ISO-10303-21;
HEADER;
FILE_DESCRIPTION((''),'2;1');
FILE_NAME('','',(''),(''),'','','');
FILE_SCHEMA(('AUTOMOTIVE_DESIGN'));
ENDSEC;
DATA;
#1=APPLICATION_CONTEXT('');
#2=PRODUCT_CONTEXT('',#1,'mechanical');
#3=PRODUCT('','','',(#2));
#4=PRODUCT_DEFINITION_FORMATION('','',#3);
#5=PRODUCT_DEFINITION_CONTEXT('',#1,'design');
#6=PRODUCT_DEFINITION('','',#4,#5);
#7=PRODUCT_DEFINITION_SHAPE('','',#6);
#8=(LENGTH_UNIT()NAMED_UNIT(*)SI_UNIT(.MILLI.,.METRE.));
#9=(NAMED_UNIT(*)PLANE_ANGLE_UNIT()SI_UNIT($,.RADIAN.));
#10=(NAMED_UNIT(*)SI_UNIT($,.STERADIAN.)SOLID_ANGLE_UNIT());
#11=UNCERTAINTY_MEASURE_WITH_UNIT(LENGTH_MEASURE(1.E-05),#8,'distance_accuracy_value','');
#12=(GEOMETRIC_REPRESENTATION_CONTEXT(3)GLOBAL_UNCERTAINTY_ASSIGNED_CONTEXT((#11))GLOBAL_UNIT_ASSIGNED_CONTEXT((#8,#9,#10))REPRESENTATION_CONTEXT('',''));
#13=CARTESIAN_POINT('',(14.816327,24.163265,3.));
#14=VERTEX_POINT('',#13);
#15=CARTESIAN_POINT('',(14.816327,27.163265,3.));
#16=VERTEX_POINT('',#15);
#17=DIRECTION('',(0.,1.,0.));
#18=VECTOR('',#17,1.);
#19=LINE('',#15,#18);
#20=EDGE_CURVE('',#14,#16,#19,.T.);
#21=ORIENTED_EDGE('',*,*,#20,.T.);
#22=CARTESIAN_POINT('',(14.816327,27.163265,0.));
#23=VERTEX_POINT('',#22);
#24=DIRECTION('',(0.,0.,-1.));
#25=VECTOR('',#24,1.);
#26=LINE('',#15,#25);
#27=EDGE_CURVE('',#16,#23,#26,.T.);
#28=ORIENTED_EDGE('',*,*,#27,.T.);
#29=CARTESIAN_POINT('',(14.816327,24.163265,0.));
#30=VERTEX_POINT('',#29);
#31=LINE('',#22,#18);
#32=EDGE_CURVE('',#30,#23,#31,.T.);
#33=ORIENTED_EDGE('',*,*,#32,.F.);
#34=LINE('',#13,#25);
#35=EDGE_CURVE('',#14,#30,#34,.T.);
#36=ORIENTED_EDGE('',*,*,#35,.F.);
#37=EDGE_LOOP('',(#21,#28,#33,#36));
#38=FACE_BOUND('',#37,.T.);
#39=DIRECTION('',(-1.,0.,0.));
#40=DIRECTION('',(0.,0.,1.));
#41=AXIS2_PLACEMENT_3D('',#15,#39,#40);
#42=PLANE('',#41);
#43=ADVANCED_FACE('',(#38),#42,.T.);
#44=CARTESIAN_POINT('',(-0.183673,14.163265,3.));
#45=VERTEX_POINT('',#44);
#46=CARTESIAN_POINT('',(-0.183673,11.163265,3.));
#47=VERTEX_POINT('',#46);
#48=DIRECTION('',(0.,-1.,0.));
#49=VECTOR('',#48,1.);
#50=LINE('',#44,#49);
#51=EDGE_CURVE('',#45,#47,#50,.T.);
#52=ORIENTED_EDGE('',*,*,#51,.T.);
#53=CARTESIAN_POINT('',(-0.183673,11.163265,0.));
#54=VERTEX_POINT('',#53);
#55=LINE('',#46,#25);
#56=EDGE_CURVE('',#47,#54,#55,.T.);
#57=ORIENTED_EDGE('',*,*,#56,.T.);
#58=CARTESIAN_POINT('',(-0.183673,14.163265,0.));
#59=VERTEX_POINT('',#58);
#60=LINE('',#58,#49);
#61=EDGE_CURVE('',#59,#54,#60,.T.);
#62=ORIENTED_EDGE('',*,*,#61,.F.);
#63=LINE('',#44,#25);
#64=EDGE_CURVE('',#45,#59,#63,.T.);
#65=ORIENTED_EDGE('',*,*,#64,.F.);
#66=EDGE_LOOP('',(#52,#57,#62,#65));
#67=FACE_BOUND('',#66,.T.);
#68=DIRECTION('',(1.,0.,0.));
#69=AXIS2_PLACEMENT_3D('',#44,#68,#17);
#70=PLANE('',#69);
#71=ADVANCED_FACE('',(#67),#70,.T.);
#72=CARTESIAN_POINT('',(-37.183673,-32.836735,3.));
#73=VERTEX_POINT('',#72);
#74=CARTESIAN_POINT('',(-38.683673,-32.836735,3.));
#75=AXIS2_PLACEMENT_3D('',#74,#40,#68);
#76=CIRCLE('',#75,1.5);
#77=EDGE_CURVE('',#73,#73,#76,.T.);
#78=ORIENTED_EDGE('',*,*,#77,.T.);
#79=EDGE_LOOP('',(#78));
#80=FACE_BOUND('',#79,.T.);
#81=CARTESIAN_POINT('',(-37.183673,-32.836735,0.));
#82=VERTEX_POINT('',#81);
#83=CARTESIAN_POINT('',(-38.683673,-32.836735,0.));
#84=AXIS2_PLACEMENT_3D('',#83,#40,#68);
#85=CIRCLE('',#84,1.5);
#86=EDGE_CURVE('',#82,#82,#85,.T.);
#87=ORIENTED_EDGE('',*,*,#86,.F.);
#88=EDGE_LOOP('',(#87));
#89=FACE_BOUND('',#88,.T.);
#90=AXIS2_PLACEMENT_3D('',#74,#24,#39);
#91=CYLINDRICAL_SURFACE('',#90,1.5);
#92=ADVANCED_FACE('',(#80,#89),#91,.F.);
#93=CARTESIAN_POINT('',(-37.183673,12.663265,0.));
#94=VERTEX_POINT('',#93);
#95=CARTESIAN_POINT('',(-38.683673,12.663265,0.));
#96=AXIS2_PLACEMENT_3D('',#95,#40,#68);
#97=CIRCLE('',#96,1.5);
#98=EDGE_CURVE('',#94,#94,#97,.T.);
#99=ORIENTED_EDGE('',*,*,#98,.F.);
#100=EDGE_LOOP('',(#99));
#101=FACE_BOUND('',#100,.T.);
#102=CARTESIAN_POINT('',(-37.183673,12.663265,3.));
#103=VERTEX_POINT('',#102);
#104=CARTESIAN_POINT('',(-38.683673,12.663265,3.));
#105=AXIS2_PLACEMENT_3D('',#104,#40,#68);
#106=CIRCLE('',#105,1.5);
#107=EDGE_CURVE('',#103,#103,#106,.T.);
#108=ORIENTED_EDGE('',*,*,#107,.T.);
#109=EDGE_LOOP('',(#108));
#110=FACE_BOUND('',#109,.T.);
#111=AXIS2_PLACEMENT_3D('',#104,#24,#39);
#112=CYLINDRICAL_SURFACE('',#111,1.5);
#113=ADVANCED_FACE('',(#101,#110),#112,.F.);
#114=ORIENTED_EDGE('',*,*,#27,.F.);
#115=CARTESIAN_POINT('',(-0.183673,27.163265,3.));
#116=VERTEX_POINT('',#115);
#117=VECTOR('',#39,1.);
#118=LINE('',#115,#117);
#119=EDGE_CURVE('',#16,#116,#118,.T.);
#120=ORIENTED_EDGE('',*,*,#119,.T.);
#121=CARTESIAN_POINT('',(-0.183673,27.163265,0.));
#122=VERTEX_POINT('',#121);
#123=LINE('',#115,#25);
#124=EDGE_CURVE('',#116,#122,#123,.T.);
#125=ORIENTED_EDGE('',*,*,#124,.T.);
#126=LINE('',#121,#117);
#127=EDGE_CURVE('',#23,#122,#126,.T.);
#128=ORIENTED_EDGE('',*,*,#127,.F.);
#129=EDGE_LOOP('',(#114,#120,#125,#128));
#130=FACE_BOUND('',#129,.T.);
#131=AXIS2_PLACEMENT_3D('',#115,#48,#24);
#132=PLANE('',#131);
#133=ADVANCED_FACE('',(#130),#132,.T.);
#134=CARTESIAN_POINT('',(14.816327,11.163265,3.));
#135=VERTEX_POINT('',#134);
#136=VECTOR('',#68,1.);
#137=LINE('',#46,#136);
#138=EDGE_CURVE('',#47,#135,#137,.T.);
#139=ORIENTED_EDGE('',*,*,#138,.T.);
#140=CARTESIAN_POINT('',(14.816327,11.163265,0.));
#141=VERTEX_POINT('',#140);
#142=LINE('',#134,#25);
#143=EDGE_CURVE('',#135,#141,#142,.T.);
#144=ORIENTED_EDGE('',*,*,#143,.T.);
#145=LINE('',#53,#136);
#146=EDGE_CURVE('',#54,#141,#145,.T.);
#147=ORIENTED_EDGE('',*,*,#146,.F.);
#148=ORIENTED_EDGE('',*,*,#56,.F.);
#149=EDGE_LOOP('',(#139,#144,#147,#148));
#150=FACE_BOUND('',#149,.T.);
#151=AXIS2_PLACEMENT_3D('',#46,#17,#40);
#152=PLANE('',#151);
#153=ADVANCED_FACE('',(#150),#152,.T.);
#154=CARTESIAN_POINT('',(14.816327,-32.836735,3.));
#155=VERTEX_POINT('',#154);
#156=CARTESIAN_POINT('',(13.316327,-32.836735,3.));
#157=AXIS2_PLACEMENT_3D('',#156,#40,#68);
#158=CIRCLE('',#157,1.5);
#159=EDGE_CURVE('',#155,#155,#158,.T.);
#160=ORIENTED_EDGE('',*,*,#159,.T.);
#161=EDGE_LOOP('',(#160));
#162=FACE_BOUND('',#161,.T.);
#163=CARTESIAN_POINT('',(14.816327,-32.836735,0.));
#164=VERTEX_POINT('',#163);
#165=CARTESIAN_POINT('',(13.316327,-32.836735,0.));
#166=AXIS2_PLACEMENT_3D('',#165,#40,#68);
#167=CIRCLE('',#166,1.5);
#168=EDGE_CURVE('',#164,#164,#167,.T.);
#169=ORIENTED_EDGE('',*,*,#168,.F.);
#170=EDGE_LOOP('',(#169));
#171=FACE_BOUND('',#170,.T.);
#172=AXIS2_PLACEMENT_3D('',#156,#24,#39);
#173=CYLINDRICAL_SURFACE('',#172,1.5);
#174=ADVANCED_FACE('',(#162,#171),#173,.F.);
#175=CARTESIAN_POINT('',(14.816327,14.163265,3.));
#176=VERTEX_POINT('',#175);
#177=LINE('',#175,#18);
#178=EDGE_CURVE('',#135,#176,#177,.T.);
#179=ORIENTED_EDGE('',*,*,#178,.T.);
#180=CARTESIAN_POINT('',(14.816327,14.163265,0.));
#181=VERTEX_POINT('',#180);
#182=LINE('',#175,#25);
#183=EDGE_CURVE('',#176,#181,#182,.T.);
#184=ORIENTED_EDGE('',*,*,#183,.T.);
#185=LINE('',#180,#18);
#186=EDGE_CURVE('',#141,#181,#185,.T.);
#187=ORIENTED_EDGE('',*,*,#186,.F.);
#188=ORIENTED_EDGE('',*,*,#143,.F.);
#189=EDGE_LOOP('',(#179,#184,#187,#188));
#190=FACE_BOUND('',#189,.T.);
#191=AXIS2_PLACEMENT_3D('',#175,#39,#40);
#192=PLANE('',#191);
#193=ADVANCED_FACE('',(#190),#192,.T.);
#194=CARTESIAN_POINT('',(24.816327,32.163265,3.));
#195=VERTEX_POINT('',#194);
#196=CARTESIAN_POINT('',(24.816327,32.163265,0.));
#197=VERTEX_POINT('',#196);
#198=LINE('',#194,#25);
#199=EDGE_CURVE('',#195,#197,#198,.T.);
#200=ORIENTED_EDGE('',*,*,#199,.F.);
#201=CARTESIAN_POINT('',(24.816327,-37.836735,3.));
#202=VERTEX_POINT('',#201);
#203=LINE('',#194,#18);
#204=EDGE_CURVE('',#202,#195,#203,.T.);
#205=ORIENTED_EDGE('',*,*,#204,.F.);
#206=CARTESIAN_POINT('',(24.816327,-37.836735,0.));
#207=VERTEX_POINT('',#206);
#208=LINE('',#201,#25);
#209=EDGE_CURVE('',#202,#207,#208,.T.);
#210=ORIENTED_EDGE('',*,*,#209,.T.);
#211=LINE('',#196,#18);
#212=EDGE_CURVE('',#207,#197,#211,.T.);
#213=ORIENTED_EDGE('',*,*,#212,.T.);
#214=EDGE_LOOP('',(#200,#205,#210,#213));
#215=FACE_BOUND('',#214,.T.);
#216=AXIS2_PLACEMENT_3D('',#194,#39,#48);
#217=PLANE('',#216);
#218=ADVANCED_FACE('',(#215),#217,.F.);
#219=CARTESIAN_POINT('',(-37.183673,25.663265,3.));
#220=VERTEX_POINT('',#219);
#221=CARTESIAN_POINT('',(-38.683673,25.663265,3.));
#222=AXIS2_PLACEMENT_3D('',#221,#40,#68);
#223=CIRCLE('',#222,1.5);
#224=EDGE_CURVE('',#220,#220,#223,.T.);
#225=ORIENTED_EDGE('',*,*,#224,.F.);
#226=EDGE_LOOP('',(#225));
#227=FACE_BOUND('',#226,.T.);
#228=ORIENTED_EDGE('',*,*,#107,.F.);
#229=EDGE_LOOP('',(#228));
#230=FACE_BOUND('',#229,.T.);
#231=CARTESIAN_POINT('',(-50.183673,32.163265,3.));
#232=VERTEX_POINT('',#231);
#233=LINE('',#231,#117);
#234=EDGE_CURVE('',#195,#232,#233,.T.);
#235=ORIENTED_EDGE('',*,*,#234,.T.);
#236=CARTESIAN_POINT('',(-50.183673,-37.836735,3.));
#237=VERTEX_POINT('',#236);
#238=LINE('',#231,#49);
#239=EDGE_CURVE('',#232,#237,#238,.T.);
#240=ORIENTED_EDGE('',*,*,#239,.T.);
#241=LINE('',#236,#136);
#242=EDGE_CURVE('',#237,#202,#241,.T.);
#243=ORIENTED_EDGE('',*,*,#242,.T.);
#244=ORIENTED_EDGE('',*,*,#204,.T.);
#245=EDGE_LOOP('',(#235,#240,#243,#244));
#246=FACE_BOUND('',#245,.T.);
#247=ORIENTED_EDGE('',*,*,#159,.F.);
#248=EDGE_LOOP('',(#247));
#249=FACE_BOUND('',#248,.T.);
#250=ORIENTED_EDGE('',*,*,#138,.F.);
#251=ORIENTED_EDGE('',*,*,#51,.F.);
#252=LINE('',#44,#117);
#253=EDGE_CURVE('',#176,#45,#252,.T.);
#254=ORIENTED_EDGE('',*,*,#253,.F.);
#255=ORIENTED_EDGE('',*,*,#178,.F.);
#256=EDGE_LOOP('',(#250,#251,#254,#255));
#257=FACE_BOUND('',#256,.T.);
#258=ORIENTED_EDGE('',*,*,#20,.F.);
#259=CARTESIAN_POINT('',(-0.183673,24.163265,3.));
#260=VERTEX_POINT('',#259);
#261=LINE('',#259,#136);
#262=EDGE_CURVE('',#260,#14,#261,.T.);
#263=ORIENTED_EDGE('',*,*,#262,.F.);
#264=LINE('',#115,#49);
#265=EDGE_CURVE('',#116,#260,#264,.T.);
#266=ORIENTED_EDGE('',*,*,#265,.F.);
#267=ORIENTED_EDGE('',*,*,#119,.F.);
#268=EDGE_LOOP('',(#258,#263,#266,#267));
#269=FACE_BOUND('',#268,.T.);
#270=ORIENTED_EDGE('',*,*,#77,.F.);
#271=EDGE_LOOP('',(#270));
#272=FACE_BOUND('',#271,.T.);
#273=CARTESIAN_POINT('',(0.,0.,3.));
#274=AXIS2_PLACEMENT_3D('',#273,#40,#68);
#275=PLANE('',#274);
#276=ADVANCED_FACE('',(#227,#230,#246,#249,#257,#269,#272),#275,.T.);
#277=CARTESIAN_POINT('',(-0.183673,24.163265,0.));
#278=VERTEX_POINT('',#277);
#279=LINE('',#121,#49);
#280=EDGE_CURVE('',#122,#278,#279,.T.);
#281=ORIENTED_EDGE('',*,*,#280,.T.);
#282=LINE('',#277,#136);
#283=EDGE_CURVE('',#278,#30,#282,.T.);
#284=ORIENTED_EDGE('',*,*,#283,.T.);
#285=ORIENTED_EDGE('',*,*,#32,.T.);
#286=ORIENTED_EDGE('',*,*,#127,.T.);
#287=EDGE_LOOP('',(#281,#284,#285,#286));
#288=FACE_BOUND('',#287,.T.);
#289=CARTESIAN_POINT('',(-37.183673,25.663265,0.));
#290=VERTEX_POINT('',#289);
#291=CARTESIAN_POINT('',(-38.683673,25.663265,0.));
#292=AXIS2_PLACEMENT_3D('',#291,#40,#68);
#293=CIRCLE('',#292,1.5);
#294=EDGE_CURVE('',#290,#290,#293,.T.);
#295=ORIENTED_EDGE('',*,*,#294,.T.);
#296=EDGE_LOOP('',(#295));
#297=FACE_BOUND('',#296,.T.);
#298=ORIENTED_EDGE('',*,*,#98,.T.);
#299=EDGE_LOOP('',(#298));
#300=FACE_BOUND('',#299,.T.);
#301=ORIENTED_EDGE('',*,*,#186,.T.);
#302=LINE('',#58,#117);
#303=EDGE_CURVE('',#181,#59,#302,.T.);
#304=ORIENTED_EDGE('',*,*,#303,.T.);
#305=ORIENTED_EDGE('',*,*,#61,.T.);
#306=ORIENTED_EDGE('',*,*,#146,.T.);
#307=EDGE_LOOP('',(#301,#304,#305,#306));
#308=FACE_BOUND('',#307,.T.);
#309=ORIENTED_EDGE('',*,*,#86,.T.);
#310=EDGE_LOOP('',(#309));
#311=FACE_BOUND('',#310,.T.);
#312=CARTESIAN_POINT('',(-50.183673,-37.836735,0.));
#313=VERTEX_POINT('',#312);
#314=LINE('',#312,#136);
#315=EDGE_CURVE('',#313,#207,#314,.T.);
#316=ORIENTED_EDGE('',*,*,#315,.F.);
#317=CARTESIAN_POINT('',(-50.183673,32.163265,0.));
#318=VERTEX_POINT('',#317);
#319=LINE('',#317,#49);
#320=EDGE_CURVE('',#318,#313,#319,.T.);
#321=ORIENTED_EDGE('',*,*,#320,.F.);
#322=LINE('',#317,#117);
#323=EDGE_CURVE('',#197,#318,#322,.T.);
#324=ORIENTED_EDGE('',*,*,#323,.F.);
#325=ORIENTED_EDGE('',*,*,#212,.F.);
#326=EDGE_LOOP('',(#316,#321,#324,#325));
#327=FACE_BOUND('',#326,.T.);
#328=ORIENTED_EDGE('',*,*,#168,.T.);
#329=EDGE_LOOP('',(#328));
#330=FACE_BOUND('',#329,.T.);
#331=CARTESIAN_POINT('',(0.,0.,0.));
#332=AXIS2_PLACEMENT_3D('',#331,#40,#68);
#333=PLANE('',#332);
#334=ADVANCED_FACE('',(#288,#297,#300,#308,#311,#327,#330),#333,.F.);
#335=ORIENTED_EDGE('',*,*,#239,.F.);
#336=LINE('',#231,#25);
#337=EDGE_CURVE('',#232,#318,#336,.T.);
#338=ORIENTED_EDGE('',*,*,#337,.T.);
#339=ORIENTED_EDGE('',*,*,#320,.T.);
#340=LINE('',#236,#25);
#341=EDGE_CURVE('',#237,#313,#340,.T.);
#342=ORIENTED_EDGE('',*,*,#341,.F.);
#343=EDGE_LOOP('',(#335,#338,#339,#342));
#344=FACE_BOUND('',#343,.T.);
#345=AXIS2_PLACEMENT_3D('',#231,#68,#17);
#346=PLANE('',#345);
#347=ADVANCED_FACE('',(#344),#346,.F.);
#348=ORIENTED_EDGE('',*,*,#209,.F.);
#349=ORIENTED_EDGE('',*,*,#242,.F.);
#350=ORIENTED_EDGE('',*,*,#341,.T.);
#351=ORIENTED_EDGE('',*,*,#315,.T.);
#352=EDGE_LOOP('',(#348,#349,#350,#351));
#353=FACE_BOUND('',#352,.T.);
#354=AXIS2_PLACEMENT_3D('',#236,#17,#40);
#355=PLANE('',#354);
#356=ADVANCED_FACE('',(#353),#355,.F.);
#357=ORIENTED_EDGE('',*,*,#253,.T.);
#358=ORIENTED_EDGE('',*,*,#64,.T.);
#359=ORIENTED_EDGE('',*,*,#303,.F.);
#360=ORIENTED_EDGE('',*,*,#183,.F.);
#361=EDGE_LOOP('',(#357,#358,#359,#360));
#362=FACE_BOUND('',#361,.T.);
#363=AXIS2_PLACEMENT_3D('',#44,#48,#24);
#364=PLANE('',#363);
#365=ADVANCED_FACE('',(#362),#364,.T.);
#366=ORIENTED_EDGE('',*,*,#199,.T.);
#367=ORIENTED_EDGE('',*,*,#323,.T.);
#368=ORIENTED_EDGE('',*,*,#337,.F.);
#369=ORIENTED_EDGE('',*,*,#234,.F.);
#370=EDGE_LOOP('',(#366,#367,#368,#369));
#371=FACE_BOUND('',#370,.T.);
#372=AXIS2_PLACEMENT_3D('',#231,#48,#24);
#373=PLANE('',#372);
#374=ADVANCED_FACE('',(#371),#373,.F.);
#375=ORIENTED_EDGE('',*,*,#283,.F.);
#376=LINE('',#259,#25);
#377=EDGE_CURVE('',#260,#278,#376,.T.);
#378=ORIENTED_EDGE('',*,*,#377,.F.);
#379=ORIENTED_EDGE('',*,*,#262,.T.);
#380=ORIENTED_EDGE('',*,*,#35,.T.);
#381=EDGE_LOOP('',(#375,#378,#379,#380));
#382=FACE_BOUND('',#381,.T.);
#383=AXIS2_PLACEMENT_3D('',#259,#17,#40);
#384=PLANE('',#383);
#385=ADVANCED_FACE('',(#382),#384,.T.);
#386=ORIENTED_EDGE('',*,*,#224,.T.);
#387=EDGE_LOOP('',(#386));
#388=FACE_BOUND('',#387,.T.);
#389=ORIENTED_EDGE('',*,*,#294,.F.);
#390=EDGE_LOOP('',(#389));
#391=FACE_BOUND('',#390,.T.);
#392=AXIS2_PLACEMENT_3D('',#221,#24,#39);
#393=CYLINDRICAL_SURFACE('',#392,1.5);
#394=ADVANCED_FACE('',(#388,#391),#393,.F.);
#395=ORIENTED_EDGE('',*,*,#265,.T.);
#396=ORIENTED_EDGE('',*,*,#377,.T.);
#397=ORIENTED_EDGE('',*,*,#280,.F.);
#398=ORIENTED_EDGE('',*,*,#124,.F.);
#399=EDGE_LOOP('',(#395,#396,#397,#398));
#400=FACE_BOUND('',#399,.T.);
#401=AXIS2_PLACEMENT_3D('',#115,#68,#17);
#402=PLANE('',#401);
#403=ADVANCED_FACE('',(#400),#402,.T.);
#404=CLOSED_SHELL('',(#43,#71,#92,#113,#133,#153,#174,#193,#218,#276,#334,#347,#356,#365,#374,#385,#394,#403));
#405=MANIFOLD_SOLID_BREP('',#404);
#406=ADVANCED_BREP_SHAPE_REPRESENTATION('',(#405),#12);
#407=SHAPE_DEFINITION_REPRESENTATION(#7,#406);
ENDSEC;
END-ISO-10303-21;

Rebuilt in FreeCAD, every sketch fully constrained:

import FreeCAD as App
import Part
import Sketcher

V = App.Vector
Q = App.Units.Quantity


def add_polygon(sketch, points):
    """Adds a closed chain of lines whose ends are joined by coincident constraints."""
    first, n = sketch.GeometryCount, len(points)
    for a, b in zip(points, points[1:] + points[:1]):
        sketch.addGeometry(Part.LineSegment(App.Vector(*a, 0), App.Vector(*b, 0)), False)
    for i in range(n):
        sketch.addConstraint(Sketcher.Constraint("Coincident", first + i, 2, first + (i + 1) % n, 1))

doc = App.newDocument("Part")
body = doc.addObject("PartDesign::Body", "Body")

sketch1 = body.newObject("Sketcher::SketchObject", "Sketch")
sketch1.AttachmentSupport = (doc.getObject("XY_Plane"), [""])
sketch1.MapMode = "FlatFace"
add_polygon(sketch1, [(-50.2, 32.2), (-50.2, -37.8), (24.8, -37.8), (24.8, 32.2)])
sketch1.addGeometry(Part.Circle(V(-38.7, -32.8, 0), V(0, 0, 1), 1.5), False)
sketch1.addGeometry(Part.Circle(V(13.3, -32.8, 0), V(0, 0, 1), 1.5), False)
sketch1.addGeometry(Part.Circle(V(-38.7, 12.7, 0), V(0, 0, 1), 1.5), False)
sketch1.addGeometry(Part.Circle(V(-38.7, 25.7, 0), V(0, 0, 1), 1.5), False)
add_polygon(sketch1, [(14.8, 11.2), (-0.2, 11.2), (-0.2, 14.2), (14.8, 14.2)])
add_polygon(sketch1, [(14.8, 24.2), (-0.2, 24.2), (-0.2, 27.2), (14.8, 27.2)])
sketch1.addConstraint(Sketcher.Constraint("Vertical", 0))
sketch1.addConstraint(Sketcher.Constraint("Horizontal", 1))
sketch1.addConstraint(Sketcher.Constraint("Vertical", 2))
sketch1.addConstraint(Sketcher.Constraint("Horizontal", 3))
sketch1.addConstraint(Sketcher.Constraint("Horizontal", 8))
sketch1.addConstraint(Sketcher.Constraint("Vertical", 9))
sketch1.addConstraint(Sketcher.Constraint("Horizontal", 10))
sketch1.addConstraint(Sketcher.Constraint("Vertical", 11))
sketch1.addConstraint(Sketcher.Constraint("Horizontal", 12))
sketch1.addConstraint(Sketcher.Constraint("Vertical", 13))
sketch1.addConstraint(Sketcher.Constraint("Horizontal", 14))
sketch1.addConstraint(Sketcher.Constraint("Vertical", 15))
sketch1.addConstraint(Sketcher.Constraint("Equal", 4, 5))
sketch1.addConstraint(Sketcher.Constraint("Equal", 5, 6))
sketch1.addConstraint(Sketcher.Constraint("Equal", 6, 7))
sketch1.addConstraint(Sketcher.Constraint("Horizontal", 4, 3, 5, 3))
sketch1.addConstraint(Sketcher.Constraint("Vertical", 4, 3, 6, 3))
sketch1.addConstraint(Sketcher.Constraint("Vertical", 6, 3, 7, 3))
sketch1.addConstraint(Sketcher.Constraint("Vertical", 9, 2, 12, 2))
sketch1.addConstraint(Sketcher.Constraint("Vertical", 11, 2, 14, 2))
sketch1.addConstraint(Sketcher.Constraint("Equal", 11, 13))
sketch1.addConstraint(Sketcher.Constraint("Diameter", 4, Q("3 mm")))
sketch1.addConstraint(Sketcher.Constraint("DistanceX", 1, 1, 1, 2, Q("75 mm")))
sketch1.addConstraint(Sketcher.Constraint("DistanceX", 8, 2, 8, 1, Q("15 mm")))
sketch1.addConstraint(Sketcher.Constraint("DistanceY", 0, 2, 0, 1, Q("70 mm")))
sketch1.addConstraint(Sketcher.Constraint("DistanceY", 9, 1, 9, 2, Q("3 mm")))
sketch1.addConstraint(Sketcher.Constraint("DistanceX", 4, 3, 5, 3, Q("52 mm")))
sketch1.addConstraint(Sketcher.Constraint("DistanceY", 6, 3, 7, 3, Q("13 mm")))
sketch1.addConstraint(Sketcher.Constraint("DistanceY", 0, 2, 4, 3, Q("5 mm")))
sketch1.addConstraint(Sketcher.Constraint("DistanceX", 8, 2, 2, 2, Q("25 mm")))
sketch1.addConstraint(Sketcher.Constraint("DistanceY", 8, 2, 2, 2, Q("21 mm")))
sketch1.addConstraint(Sketcher.Constraint("DistanceY", 9, 2, 12, 2, Q("10 mm")))
sketch1.addConstraint(Sketcher.Constraint("DistanceY", 4, 3, 6, 3, Q("45.5 mm")))
sketch1.addConstraint(Sketcher.Constraint("DistanceX", 0, 2, 4, 3, Q("11.5 mm")))
sketch1.addConstraint(Sketcher.Constraint("DistanceX", 4, 3, -1, 1, Q("38.683673 mm")))
sketch1.addConstraint(Sketcher.Constraint("DistanceY", 4, 3, -1, 1, Q("32.836735 mm")))
pad1 = body.newObject("PartDesign::Pad", "Pad")
pad1.Profile = sketch1
pad1.Length = 3

doc.recompute()
